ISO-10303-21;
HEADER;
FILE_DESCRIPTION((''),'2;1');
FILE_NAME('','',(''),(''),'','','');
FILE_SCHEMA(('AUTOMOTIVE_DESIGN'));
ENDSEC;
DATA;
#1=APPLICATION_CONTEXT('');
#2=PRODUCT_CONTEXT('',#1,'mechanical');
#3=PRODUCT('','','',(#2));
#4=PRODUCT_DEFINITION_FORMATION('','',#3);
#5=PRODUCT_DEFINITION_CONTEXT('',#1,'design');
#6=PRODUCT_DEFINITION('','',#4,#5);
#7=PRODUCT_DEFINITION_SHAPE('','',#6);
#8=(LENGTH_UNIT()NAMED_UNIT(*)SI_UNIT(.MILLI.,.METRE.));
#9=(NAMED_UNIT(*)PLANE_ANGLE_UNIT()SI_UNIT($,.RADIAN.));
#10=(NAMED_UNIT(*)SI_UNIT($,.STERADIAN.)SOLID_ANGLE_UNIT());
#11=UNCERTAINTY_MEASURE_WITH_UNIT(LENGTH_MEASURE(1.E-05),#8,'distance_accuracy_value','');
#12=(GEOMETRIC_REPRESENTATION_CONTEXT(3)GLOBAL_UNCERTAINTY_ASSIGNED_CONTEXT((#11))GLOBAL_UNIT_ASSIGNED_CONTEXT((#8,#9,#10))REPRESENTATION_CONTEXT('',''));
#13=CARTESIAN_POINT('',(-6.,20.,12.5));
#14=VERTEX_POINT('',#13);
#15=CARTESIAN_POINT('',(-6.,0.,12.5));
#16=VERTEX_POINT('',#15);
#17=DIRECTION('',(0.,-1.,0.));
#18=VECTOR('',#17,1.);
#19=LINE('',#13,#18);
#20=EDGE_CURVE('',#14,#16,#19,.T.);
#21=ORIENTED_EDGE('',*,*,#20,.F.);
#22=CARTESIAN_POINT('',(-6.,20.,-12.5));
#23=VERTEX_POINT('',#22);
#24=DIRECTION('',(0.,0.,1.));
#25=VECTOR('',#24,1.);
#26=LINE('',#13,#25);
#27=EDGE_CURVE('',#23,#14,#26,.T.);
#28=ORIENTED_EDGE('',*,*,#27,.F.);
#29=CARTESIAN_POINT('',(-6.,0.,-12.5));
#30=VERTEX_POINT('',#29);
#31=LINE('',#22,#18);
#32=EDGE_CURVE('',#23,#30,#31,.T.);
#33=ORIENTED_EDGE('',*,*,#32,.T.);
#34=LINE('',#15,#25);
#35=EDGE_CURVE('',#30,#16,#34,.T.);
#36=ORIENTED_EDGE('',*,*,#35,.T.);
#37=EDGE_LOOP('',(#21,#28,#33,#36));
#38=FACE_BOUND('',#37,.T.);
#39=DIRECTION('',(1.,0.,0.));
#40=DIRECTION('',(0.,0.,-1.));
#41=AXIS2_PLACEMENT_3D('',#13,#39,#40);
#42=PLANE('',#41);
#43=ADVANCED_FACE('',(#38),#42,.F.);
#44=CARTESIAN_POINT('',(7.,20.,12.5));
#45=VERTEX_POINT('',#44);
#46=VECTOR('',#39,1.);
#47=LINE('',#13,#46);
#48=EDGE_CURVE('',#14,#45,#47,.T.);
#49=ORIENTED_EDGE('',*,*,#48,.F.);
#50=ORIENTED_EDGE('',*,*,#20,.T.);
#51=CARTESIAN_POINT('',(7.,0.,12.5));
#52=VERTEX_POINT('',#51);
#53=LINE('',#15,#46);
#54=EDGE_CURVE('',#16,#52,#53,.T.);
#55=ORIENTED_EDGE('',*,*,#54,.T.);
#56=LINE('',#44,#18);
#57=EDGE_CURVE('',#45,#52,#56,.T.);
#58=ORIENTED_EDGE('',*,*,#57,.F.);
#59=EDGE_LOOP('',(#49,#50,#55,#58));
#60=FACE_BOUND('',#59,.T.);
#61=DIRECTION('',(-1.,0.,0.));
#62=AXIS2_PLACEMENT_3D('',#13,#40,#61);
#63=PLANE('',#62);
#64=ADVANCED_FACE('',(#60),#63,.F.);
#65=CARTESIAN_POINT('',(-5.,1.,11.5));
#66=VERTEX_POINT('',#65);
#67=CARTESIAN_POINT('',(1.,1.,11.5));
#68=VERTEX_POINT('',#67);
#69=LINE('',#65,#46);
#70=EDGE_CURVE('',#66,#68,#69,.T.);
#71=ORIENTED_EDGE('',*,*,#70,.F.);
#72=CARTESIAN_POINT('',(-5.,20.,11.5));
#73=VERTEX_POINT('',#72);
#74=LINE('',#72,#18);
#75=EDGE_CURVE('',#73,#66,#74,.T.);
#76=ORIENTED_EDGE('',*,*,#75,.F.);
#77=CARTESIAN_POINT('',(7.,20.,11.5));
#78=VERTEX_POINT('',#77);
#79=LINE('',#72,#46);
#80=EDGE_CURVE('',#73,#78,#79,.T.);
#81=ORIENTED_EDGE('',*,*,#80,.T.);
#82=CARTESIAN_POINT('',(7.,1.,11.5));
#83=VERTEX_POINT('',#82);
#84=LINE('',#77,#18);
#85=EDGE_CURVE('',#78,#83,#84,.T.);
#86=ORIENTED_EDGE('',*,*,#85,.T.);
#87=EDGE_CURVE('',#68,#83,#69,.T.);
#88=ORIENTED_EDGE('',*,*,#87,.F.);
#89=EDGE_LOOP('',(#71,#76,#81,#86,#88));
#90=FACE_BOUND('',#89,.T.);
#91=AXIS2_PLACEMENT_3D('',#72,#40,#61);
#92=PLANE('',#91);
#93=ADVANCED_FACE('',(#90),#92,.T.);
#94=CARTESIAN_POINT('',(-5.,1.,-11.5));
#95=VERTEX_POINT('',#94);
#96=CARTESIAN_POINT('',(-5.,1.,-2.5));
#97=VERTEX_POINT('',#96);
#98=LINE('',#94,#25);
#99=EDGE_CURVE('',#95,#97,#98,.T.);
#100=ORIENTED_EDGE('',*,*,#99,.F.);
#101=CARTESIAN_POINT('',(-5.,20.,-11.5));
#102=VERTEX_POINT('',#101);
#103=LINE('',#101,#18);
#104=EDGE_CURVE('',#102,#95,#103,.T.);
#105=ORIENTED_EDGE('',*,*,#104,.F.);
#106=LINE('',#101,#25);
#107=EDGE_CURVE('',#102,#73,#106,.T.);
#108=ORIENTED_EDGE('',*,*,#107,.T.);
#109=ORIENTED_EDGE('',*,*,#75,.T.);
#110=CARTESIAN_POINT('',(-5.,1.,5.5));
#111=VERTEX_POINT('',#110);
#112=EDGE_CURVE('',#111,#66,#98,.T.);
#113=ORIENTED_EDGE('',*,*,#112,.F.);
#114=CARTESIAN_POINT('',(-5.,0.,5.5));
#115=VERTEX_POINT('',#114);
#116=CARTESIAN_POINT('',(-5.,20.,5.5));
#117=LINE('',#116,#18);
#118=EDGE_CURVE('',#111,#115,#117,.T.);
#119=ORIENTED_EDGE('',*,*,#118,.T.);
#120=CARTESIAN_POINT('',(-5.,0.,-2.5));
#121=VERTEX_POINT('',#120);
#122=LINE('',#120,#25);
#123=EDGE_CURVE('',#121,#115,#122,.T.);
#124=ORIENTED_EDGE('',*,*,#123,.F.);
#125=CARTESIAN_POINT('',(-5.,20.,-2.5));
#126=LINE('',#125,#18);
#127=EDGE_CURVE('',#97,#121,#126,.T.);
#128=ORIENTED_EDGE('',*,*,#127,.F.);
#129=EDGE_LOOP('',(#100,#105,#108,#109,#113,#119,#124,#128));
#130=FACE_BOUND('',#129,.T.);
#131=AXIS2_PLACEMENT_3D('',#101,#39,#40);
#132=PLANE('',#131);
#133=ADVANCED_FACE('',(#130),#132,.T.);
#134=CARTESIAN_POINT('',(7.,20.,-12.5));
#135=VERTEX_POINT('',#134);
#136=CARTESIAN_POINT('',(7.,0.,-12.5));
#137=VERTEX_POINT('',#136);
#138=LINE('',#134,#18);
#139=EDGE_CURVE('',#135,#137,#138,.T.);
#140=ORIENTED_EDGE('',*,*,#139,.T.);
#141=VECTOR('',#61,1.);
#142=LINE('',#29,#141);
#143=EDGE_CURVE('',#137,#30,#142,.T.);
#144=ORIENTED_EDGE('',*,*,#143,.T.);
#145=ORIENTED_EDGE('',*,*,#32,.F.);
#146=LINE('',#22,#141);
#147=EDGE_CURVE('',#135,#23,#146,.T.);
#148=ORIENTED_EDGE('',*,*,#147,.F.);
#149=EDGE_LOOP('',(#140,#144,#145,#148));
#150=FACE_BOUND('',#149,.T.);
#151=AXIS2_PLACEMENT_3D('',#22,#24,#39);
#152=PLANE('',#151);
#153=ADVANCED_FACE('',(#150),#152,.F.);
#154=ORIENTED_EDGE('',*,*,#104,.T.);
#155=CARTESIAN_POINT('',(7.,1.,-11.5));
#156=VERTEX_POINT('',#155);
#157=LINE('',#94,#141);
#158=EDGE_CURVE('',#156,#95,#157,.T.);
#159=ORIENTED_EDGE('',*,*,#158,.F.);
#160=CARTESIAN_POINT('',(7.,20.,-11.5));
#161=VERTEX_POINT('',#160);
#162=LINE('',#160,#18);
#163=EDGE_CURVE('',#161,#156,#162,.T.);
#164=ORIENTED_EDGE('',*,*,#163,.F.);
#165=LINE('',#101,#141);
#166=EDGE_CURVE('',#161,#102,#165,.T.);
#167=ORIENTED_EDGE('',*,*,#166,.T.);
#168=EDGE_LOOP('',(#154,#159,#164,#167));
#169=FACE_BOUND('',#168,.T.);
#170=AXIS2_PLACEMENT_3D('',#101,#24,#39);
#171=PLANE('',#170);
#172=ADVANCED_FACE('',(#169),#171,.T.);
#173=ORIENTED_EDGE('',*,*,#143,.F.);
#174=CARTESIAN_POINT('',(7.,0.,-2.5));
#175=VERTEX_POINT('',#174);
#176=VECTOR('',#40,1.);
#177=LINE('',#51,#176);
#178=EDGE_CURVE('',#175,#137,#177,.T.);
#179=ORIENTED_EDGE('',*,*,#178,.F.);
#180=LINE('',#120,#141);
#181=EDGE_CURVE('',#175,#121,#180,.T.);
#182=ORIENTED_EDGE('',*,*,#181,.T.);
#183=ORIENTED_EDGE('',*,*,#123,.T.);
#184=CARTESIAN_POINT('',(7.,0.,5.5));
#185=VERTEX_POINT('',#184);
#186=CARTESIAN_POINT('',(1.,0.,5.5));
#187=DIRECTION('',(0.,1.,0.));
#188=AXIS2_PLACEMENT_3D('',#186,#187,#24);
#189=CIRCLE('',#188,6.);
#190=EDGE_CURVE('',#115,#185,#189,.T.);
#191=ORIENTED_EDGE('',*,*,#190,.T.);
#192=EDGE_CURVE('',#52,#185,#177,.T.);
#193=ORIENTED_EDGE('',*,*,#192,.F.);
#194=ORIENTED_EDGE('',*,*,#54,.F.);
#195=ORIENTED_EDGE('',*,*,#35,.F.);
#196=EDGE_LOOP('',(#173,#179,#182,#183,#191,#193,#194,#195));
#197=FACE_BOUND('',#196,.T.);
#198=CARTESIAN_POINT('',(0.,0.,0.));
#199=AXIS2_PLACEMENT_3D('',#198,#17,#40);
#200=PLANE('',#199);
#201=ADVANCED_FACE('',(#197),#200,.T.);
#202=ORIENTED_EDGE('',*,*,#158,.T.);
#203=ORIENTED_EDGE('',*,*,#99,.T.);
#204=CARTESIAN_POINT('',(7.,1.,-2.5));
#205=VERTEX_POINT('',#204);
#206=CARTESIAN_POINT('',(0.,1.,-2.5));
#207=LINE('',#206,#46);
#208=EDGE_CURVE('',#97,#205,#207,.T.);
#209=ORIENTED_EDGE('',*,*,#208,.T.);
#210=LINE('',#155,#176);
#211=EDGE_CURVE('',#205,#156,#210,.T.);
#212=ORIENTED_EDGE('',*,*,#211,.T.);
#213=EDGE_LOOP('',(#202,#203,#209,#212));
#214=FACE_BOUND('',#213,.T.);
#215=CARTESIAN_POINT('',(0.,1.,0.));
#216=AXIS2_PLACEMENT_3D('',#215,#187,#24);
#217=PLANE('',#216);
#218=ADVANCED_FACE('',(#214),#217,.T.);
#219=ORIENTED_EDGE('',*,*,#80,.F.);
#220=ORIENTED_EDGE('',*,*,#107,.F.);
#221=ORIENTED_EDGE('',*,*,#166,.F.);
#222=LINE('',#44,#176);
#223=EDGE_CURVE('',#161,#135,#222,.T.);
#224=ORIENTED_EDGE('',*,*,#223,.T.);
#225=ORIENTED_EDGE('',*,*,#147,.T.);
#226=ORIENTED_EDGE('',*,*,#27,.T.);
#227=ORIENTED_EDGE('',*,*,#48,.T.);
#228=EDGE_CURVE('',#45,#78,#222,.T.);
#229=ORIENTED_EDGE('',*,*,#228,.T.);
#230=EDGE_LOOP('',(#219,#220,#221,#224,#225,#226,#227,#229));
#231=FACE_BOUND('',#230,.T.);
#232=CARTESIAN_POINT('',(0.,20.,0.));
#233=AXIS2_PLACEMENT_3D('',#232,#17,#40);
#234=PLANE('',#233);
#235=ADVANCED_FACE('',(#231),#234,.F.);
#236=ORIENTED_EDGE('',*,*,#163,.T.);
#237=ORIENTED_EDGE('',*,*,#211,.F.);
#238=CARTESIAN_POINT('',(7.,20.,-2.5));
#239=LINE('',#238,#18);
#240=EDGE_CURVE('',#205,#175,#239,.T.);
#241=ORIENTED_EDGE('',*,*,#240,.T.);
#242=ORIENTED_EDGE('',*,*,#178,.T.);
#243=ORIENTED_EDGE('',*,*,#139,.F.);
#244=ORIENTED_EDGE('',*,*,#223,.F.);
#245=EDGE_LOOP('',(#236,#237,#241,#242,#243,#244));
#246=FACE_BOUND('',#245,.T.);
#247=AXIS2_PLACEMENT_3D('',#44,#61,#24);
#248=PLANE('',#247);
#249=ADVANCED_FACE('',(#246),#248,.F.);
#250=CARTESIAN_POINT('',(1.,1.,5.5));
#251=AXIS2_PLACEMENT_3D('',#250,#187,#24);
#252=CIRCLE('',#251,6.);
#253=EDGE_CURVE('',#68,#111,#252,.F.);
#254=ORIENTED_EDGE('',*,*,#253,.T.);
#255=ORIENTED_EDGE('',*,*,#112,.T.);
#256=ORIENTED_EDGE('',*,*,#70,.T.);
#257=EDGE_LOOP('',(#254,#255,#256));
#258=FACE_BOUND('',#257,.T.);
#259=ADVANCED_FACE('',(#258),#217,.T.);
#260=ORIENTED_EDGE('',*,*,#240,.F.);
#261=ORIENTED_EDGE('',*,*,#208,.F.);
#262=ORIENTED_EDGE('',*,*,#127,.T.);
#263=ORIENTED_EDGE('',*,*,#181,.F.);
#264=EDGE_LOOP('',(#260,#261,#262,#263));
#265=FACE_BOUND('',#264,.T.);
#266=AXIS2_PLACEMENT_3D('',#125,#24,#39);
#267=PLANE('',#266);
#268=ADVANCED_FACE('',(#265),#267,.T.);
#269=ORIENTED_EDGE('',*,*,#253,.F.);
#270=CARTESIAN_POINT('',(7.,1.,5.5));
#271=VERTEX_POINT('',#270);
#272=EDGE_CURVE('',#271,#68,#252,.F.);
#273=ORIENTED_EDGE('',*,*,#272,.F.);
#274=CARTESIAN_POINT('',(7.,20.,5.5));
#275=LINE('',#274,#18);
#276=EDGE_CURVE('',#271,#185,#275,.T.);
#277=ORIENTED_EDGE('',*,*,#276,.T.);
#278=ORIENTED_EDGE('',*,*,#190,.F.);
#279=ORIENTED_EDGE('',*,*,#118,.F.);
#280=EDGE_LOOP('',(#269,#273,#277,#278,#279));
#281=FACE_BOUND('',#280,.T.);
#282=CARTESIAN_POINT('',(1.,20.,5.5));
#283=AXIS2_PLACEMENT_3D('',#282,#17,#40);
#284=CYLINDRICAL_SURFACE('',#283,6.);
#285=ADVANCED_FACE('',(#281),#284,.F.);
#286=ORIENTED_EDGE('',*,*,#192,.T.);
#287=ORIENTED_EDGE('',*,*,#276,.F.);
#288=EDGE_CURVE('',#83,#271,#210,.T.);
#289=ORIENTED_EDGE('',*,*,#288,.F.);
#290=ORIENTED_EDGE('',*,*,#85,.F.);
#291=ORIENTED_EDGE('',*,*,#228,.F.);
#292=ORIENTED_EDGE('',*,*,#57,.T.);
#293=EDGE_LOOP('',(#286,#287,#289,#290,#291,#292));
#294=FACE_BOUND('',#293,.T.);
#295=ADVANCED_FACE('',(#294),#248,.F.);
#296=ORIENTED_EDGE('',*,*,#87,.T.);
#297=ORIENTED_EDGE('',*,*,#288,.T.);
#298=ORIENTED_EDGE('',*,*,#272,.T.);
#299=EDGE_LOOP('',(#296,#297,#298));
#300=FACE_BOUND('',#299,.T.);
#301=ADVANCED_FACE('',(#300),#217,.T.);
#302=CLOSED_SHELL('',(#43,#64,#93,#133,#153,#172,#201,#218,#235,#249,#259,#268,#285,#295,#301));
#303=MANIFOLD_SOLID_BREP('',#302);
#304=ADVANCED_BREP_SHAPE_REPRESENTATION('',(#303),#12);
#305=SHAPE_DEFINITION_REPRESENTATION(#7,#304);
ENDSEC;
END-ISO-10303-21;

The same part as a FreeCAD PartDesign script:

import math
import FreeCAD as App
import Part
import Sketcher
from FreeCAD import Vector

doc = App.newDocument("Part")
body = doc.addObject("PartDesign::Body", "Body")

sketch1 = doc.addObject("Sketcher::SketchObject", "Sketch")
body.addObject(sketch1)
sketch1.AttachmentSupport = (doc.XZ_Plane, [""])
sketch1.MapMode = "FlatFace"
sketch1.addGeometry([
    Part.LineSegment(Vector(-6, -12, 0), Vector(-6, 12, 0)),
    Part.LineSegment(Vector(-6, 12, 0), Vector(7, 12, 0)),
    Part.LineSegment(Vector(7, 12, 0), Vector(7, -12, 0)),
    Part.LineSegment(Vector(7, -12, 0), Vector(-6, -12, 0)),
], False)
sketch1.addConstraint([
    Sketcher.Constraint("Coincident", 0, 2, 1, 1),
    Sketcher.Constraint("Coincident", 1, 2, 2, 1),
    Sketcher.Constraint("Coincident", 2, 2, 3, 1),
    Sketcher.Constraint("Coincident", 3, 2, 0, 1),
    Sketcher.Constraint("Vertical", 0),
    Sketcher.Constraint("Horizontal", 1),
    Sketcher.Constraint("Vertical", 2),
    Sketcher.Constraint("Horizontal", 3),
    Sketcher.Constraint("DistanceX", 1, 1, 1, 2, 13.0),
    Sketcher.Constraint("DistanceY", 0, 1, 0, 2, 25.0),
    Sketcher.Constraint("DistanceX", 0, 2, -1, 1, 6.0),
    Sketcher.Constraint("DistanceY", -1, 1, 0, 2, 12.5),
])
pad1 = doc.addObject("PartDesign::Pad", "Pad")
body.addObject(pad1)
pad1.Profile = sketch1
pad1.Length = 20
pad1.Reversed = True

sketch2 = doc.addObject("Sketcher::SketchObject", "Sketch001")
body.addObject(sketch2)
sketch2.AttachmentSupport = (doc.XZ_Plane, [""])
sketch2.MapMode = "FlatFace"
sketch2.AttachmentOffset = App.Placement(Vector(0, 0, -1), App.Rotation())
sketch2.addGeometry([
    Part.LineSegment(Vector(-5, -12, 0), Vector(-5, 12, 0)),
    Part.LineSegment(Vector(-5, 12, 0), Vector(7, 12, 0)),
    Part.LineSegment(Vector(7, 12, 0), Vector(7, -12, 0)),
    Part.LineSegment(Vector(7, -12, 0), Vector(-5, -12, 0)),
], False)
sketch2.addConstraint([
    Sketcher.Constraint("Coincident", 0, 2, 1, 1),
    Sketcher.Constraint("Coincident", 1, 2, 2, 1),
    Sketcher.Constraint("Coincident", 2, 2, 3, 1),
    Sketcher.Constraint("Coincident", 3, 2, 0, 1),
    Sketcher.Constraint("Vertical", 0),
    Sketcher.Constraint("Horizontal", 1),
    Sketcher.Constraint("Vertical", 2),
    Sketcher.Constraint("Horizontal", 3),
    Sketcher.Constraint("DistanceX", 1, 1, 1, 2, 12.0),
    Sketcher.Constraint("DistanceY", 0, 1, 0, 2, 23.0),
    Sketcher.Constraint("DistanceX", 0, 2, -1, 1, 5.0),
    Sketcher.Constraint("DistanceY", -1, 1, 0, 2, 11.5),
])
pocket1 = doc.addObject("PartDesign::Pocket", "Pocket")
body.addObject(pocket1)
pocket1.Profile = sketch2
pocket1.Type = "ThroughAll"

sketch3 = doc.addObject("Sketcher::SketchObject", "Sketch002")
body.addObject(sketch3)
sketch3.AttachmentSupport = (doc.XZ_Plane, [""])
sketch3.MapMode = "FlatFace"
sketch3.addGeometry([
    Part.LineSegment(Vector(7, -2, 0), Vector(-5, -2, 0)),
    Part.LineSegment(Vector(-5, -2, 0), Vector(-5, 6, 0)),
    Part.ArcOfCircle(Part.Circle(Vector(1, 6, 0), Vector(0, 0, 1), 6), math.radians(0), math.radians(180)),
    Part.LineSegment(Vector(7, 6, 0), Vector(7, -2, 0)),
], False)
sketch3.addConstraint([
    Sketcher.Constraint("Coincident", 0, 2, 1, 1),
    Sketcher.Constraint("Tangent", 1, 2, 2, 2),
    Sketcher.Constraint("Tangent", 2, 1, 3, 1),
    Sketcher.Constraint("Coincident", 3, 2, 0, 1),
    Sketcher.Constraint("Horizontal", 0),
    Sketcher.Constraint("Vertical", 1),
    Sketcher.Constraint("Vertical", 3),
    Sketcher.Constraint("Radius", 2, 6.0),
    Sketcher.Constraint("DistanceY", 1, 1, 1, 2, 8.0),
    Sketcher.Constraint("DistanceX", -1, 1, 2, 3, 1.0),
    Sketcher.Constraint("DistanceY", -1, 1, 2, 3, 5.5),
])
pocket2 = doc.addObject("PartDesign::Pocket", "Pocket001")
body.addObject(pocket2)
pocket2.Profile = sketch3
pocket2.Type = "ThroughAll"

doc.recompute()
